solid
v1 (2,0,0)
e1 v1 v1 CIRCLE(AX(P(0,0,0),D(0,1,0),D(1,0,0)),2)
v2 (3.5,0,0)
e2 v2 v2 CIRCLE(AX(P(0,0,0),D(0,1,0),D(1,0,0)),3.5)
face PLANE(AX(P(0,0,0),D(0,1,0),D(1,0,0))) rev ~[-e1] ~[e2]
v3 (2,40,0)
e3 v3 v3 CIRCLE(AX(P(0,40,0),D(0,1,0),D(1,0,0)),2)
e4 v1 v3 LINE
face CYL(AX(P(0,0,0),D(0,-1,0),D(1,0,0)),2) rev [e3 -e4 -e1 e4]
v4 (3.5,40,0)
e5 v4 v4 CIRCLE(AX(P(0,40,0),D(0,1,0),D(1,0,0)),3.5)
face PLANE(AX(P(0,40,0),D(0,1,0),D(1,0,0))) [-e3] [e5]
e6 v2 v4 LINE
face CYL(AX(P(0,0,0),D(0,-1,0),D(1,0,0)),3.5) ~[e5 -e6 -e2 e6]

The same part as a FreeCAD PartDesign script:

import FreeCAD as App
import Part
import Sketcher
Q = App.Units.Quantity

doc = App.newDocument("Part")
body = doc.addObject("PartDesign::Body", "Body")

# Sketch on XZ plane
sketch1 = body.newObject("Sketcher::SketchObject", "Sketch")
sketch1.AttachmentSupport = (doc.getObject("XZ_Plane"), [""])
sketch1.MapMode = "FlatFace"
sketch1.addGeometry(Part.Circle(App.Vector(0, 0, 0), App.Vector(0, 0, 1), 3.5), False)
sketch1.addGeometry(Part.Circle(App.Vector(0, 0, 0), App.Vector(0, 0, 1), 2), False)
sketch1.addConstraint(Sketcher.Constraint("Coincident", 0, 3, -1, 1))
sketch1.addConstraint(Sketcher.Constraint("Coincident", 1, 3, -1, 1))
sketch1.addConstraint(Sketcher.Constraint("Diameter", 0, Q("7 mm")))
sketch1.addConstraint(Sketcher.Constraint("Diameter", 1, Q("4 mm")))
pad1 = body.newObject("PartDesign::Pad", "Pad")
pad1.Profile = sketch1
pad1.Length = 40
pad1.Reversed = True

doc.recompute()
